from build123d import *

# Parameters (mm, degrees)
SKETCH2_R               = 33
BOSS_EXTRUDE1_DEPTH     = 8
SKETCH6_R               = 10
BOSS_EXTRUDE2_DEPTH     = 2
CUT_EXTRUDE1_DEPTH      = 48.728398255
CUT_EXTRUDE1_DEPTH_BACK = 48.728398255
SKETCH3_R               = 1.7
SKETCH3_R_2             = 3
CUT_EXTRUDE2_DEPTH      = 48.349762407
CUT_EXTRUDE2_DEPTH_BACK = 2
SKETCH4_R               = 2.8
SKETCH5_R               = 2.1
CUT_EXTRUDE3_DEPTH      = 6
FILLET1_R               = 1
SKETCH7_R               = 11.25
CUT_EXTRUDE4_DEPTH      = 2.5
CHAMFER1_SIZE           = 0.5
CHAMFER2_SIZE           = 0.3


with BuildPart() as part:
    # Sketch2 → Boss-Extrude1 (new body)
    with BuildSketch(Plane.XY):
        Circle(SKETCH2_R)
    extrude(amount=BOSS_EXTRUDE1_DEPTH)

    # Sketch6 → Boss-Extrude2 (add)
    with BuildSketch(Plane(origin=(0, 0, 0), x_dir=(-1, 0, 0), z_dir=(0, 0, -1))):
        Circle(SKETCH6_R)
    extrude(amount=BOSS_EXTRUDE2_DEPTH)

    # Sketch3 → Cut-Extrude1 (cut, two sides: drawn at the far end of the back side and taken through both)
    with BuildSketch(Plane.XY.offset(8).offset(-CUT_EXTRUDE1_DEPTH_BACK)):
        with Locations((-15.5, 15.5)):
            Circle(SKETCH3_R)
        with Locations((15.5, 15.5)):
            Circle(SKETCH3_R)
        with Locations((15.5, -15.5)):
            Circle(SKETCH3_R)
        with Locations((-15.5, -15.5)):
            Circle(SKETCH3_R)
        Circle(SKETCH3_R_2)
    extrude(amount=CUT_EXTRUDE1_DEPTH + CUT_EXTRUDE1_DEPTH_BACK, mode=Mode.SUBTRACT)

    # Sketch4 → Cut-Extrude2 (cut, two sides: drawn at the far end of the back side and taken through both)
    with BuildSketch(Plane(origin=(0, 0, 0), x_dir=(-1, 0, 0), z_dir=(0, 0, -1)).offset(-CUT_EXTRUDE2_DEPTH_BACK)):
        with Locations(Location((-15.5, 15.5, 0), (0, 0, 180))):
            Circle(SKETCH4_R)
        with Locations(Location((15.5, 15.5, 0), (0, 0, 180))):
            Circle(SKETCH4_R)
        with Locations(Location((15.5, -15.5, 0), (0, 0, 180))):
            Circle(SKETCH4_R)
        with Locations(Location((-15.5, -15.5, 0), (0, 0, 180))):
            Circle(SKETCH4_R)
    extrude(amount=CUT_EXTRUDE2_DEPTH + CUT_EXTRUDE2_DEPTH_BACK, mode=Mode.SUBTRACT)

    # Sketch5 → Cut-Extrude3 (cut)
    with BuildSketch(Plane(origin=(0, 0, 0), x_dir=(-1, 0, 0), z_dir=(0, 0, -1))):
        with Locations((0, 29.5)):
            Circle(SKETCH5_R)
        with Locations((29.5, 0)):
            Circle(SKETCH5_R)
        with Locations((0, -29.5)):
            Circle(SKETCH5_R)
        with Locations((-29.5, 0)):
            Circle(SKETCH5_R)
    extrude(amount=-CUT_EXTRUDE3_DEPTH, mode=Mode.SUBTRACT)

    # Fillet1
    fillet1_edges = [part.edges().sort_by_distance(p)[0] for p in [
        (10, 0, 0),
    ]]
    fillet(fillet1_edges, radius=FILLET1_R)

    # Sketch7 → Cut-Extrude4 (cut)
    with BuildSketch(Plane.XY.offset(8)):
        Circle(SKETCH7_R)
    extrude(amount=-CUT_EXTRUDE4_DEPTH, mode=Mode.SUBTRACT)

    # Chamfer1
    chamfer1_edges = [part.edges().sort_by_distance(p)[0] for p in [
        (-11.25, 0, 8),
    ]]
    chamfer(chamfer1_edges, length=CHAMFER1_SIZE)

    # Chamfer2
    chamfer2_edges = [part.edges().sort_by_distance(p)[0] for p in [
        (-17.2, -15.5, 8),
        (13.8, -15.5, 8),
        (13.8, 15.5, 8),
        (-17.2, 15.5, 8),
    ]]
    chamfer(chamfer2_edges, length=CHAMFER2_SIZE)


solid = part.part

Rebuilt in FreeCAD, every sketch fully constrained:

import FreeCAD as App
import Part
import Sketcher

V = App.Vector


def edges_at(feature, points):
    """Names of the edges that pass closest to the given points."""
    edges = feature.Shape.Edges
    near = lambda p: min(range(len(edges)), key=lambda i: edges[i].distToShape(Part.Vertex(*p))[0])
    return sorted({f"Edge{near(p) + 1}" for p in points})

doc = App.newDocument("Part")
body = doc.addObject("PartDesign::Body", "Body")

# Sketch on XY plane
sketch1 = body.newObject("Sketcher::SketchObject", "Sketch")
sketch1.AttachmentSupport = (doc.getObject("XY_Plane"), [""])
sketch1.MapMode = "FlatFace"
sketch1.addGeometry(Part.Circle(V(0, 0, 0), V(0, 0, 1), 33), False)
sketch1.addConstraint([
    Sketcher.Constraint("Coincident", 0, 3, -1, 1),
    Sketcher.Constraint("Diameter", 0, 66.0),
])
pad1 = body.newObject("PartDesign::Pad", "Pad")
pad1.Profile = sketch1
pad1.Length = 8

# Sketch on XY plane
sketch2 = body.newObject("Sketcher::SketchObject", "Sketch001")
sketch2.AttachmentSupport = (doc.getObject("XY_Plane"), [""])
sketch2.MapMode = "FlatFace"
sketch2.addGeometry(Part.Circle(V(0, 0, 0), V(0, 0, 1), 10), False)
sketch2.addConstraint([
    Sketcher.Constraint("Coincident", 0, 3, -1, 1),
    Sketcher.Constraint("Diameter", 0, 20.0),
])
pad2 = body.newObject("PartDesign::Pad", "Pad001")
pad2.Profile = sketch2
pad2.Length = 2
pad2.Reversed = True

# Sketch on XY plane
sketch3 = body.newObject("Sketcher::SketchObject", "Sketch002")
sketch3.AttachmentSupport = (doc.getObject("XY_Plane"), [""])
sketch3.MapMode = "FlatFace"
sketch3.AttachmentOffset = App.Placement(V(0, 0, 8), App.Rotation())
sketch3.addGeometry([
    Part.Circle(V(-15.5, 15.5, 0), V(0, 0, 1), 1.7),  # 0
    Part.Circle(V(15.5, 15.5, 0), V(0, 0, 1), 1.7),  # 1
    Part.Circle(V(15.5, -15.5, 0), V(0, 0, 1), 1.7),  # 2
    Part.Circle(V(-15.5, -15.5, 0), V(0, 0, 1), 1.7),  # 3
    Part.Circle(V(0, 0, 0), V(0, 0, 1), 3),  # 4
], False)
sketch3.addConstraint([
    Sketcher.Constraint("Coincident", 4, 3, -1, 1),
    Sketcher.Constraint("Equal", 0, 1),
    Sketcher.Constraint("Equal", 1, 2),
    Sketcher.Constraint("Equal", 2, 3),
    Sketcher.Constraint("Symmetric", 0, 3, 2, 3, -1, 1),
    Sketcher.Constraint("Symmetric", 1, 3, 3, 3, -1, 1),
    Sketcher.Constraint("Symmetric", 0, 3, 1, 3, -2),
    Sketcher.Constraint("Diameter", 4, 6.0),
    Sketcher.Constraint("Diameter", 0, 3.4),
    Sketcher.Constraint("DistanceX", 0, 3, 1, 3, 31.0),
    Sketcher.Constraint("DistanceY", 2, 3, 1, 3, 31.0),
])
pocket1 = body.newObject("PartDesign::Pocket", "Pocket")
pocket1.Profile = sketch3
pocket1.Type = "ThroughAll"
pocket1.Midplane = True

# Sketch on XY plane
sketch4 = body.newObject("Sketcher::SketchObject", "Sketch003")
sketch4.AttachmentSupport = (doc.getObject("XY_Plane"), [""])
sketch4.MapMode = "FlatFace"
sketch4.addGeometry([
    Part.Circle(V(15.5, 15.5, 0), V(0, 0, 1), 2.8),
    Part.Circle(V(-15.5, 15.5, 0), V(0, 0, 1), 2.8),
    Part.Circle(V(-15.5, -15.5, 0), V(0, 0, 1), 2.8),
    Part.Circle(V(15.5, -15.5, 0), V(0, 0, 1), 2.8),
], False)
sketch4.addConstraint([
    Sketcher.Constraint("Equal", 0, 1),
    Sketcher.Constraint("Equal", 1, 2),
    Sketcher.Constraint("Equal", 2, 3),
    Sketcher.Constraint("Symmetric", 0, 3, 2, 3, -1, 1),
    Sketcher.Constraint("Symmetric", 1, 3, 3, 3, -1, 1),
    Sketcher.Constraint("Symmetric", 0, 3, 1, 3, -2),
    Sketcher.Constraint("Diameter", 0, 5.6),
    Sketcher.Constraint("DistanceX", 1, 3, 0, 3, 31.0),
    Sketcher.Constraint("DistanceY", 2, 3, 1, 3, 31.0),
])
pocket2 = body.newObject("PartDesign::Pocket", "Pocket001")
pocket2.Profile = sketch4
pocket2.Type = "TwoLengths"
pocket2.Length = 48.349762
pocket2.Length2 = 2

# Sketch on XY plane
sketch5 = body.newObject("Sketcher::SketchObject", "Sketch004")
sketch5.AttachmentSupport = (doc.getObject("XY_Plane"), [""])
sketch5.MapMode = "FlatFace"
sketch5.addGeometry([
    Part.Circle(V(0, 29.5, 0), V(0, 0, 1), 2.1),
    Part.Circle(V(-29.5, 0, 0), V(0, 0, 1), 2.1),
    Part.Circle(V(0, -29.5, 0), V(0, 0, 1), 2.1),
    Part.Circle(V(29.5, 0, 0), V(0, 0, 1), 2.1),
], False)
sketch5.addConstraint([
    Sketcher.Constraint("Equal", 0, 1),
    Sketcher.Constraint("Equal", 1, 2),
    Sketcher.Constraint("Equal", 2, 3),
    Sketcher.Constraint("Symmetric", 0, 3, 2, 3, -1, 1),
    Sketcher.Constraint("Symmetric", 1, 3, 3, 3, -1, 1),
    Sketcher.Constraint("PointOnObject", 0, 3, -2),
    Sketcher.Constraint("PointOnObject", 1, 3, -1),
    Sketcher.Constraint("Diameter", 0, 4.2),
    Sketcher.Constraint("DistanceY", 2, 3, 0, 3, 59.0),
    Sketcher.Constraint("DistanceX", 1, 3, 3, 3, 59.0),
])
pocket3 = body.newObject("PartDesign::Pocket", "Pocket002")
pocket3.Profile = sketch5
pocket3.Length = 6
pocket3.Reversed = True
doc.recompute()

fillet = body.newObject("PartDesign::Fillet", "Fillet")
fillet.Base = (pocket3, edges_at(pocket3, [(10, 0, 0)]))
fillet.Radius = 1

# Sketch on XY plane
sketch6 = body.newObject("Sketcher::SketchObject", "Sketch005")
sketch6.AttachmentSupport = (doc.getObject("XY_Plane"), [""])
sketch6.MapMode = "FlatFace"
sketch6.AttachmentOffset = App.Placement(V(0, 0, 8), App.Rotation())
sketch6.addGeometry(Part.Circle(V(0, 0, 0), V(0, 0, 1), 11), False)
sketch6.addConstraint([
    Sketcher.Constraint("Coincident", 0, 3, -1, 1),
    Sketcher.Constraint("Diameter", 0, 22.5),
])
pocket4 = body.newObject("PartDesign::Pocket", "Pocket003")
pocket4.Profile = sketch6
pocket4.Length = 2.5
doc.recompute()

chamfer = body.newObject("PartDesign::Chamfer", "Chamfer")
chamfer.Base = (pocket4, edges_at(pocket4, [(-11.25, 0, 8)]))
chamfer.Size = 0.5
doc.recompute()

chamfer2 = body.newObject("PartDesign::Chamfer", "Chamfer001")
chamfer2.Base = (chamfer, edges_at(chamfer, [
    (-17.2, -15.5, 8),
    (13.8, -15.5, 8),
    (13.8, 15.5, 8),
    (-17.2, 15.5, 8),
]))
chamfer2.Size = 0.3

doc.recompute()
